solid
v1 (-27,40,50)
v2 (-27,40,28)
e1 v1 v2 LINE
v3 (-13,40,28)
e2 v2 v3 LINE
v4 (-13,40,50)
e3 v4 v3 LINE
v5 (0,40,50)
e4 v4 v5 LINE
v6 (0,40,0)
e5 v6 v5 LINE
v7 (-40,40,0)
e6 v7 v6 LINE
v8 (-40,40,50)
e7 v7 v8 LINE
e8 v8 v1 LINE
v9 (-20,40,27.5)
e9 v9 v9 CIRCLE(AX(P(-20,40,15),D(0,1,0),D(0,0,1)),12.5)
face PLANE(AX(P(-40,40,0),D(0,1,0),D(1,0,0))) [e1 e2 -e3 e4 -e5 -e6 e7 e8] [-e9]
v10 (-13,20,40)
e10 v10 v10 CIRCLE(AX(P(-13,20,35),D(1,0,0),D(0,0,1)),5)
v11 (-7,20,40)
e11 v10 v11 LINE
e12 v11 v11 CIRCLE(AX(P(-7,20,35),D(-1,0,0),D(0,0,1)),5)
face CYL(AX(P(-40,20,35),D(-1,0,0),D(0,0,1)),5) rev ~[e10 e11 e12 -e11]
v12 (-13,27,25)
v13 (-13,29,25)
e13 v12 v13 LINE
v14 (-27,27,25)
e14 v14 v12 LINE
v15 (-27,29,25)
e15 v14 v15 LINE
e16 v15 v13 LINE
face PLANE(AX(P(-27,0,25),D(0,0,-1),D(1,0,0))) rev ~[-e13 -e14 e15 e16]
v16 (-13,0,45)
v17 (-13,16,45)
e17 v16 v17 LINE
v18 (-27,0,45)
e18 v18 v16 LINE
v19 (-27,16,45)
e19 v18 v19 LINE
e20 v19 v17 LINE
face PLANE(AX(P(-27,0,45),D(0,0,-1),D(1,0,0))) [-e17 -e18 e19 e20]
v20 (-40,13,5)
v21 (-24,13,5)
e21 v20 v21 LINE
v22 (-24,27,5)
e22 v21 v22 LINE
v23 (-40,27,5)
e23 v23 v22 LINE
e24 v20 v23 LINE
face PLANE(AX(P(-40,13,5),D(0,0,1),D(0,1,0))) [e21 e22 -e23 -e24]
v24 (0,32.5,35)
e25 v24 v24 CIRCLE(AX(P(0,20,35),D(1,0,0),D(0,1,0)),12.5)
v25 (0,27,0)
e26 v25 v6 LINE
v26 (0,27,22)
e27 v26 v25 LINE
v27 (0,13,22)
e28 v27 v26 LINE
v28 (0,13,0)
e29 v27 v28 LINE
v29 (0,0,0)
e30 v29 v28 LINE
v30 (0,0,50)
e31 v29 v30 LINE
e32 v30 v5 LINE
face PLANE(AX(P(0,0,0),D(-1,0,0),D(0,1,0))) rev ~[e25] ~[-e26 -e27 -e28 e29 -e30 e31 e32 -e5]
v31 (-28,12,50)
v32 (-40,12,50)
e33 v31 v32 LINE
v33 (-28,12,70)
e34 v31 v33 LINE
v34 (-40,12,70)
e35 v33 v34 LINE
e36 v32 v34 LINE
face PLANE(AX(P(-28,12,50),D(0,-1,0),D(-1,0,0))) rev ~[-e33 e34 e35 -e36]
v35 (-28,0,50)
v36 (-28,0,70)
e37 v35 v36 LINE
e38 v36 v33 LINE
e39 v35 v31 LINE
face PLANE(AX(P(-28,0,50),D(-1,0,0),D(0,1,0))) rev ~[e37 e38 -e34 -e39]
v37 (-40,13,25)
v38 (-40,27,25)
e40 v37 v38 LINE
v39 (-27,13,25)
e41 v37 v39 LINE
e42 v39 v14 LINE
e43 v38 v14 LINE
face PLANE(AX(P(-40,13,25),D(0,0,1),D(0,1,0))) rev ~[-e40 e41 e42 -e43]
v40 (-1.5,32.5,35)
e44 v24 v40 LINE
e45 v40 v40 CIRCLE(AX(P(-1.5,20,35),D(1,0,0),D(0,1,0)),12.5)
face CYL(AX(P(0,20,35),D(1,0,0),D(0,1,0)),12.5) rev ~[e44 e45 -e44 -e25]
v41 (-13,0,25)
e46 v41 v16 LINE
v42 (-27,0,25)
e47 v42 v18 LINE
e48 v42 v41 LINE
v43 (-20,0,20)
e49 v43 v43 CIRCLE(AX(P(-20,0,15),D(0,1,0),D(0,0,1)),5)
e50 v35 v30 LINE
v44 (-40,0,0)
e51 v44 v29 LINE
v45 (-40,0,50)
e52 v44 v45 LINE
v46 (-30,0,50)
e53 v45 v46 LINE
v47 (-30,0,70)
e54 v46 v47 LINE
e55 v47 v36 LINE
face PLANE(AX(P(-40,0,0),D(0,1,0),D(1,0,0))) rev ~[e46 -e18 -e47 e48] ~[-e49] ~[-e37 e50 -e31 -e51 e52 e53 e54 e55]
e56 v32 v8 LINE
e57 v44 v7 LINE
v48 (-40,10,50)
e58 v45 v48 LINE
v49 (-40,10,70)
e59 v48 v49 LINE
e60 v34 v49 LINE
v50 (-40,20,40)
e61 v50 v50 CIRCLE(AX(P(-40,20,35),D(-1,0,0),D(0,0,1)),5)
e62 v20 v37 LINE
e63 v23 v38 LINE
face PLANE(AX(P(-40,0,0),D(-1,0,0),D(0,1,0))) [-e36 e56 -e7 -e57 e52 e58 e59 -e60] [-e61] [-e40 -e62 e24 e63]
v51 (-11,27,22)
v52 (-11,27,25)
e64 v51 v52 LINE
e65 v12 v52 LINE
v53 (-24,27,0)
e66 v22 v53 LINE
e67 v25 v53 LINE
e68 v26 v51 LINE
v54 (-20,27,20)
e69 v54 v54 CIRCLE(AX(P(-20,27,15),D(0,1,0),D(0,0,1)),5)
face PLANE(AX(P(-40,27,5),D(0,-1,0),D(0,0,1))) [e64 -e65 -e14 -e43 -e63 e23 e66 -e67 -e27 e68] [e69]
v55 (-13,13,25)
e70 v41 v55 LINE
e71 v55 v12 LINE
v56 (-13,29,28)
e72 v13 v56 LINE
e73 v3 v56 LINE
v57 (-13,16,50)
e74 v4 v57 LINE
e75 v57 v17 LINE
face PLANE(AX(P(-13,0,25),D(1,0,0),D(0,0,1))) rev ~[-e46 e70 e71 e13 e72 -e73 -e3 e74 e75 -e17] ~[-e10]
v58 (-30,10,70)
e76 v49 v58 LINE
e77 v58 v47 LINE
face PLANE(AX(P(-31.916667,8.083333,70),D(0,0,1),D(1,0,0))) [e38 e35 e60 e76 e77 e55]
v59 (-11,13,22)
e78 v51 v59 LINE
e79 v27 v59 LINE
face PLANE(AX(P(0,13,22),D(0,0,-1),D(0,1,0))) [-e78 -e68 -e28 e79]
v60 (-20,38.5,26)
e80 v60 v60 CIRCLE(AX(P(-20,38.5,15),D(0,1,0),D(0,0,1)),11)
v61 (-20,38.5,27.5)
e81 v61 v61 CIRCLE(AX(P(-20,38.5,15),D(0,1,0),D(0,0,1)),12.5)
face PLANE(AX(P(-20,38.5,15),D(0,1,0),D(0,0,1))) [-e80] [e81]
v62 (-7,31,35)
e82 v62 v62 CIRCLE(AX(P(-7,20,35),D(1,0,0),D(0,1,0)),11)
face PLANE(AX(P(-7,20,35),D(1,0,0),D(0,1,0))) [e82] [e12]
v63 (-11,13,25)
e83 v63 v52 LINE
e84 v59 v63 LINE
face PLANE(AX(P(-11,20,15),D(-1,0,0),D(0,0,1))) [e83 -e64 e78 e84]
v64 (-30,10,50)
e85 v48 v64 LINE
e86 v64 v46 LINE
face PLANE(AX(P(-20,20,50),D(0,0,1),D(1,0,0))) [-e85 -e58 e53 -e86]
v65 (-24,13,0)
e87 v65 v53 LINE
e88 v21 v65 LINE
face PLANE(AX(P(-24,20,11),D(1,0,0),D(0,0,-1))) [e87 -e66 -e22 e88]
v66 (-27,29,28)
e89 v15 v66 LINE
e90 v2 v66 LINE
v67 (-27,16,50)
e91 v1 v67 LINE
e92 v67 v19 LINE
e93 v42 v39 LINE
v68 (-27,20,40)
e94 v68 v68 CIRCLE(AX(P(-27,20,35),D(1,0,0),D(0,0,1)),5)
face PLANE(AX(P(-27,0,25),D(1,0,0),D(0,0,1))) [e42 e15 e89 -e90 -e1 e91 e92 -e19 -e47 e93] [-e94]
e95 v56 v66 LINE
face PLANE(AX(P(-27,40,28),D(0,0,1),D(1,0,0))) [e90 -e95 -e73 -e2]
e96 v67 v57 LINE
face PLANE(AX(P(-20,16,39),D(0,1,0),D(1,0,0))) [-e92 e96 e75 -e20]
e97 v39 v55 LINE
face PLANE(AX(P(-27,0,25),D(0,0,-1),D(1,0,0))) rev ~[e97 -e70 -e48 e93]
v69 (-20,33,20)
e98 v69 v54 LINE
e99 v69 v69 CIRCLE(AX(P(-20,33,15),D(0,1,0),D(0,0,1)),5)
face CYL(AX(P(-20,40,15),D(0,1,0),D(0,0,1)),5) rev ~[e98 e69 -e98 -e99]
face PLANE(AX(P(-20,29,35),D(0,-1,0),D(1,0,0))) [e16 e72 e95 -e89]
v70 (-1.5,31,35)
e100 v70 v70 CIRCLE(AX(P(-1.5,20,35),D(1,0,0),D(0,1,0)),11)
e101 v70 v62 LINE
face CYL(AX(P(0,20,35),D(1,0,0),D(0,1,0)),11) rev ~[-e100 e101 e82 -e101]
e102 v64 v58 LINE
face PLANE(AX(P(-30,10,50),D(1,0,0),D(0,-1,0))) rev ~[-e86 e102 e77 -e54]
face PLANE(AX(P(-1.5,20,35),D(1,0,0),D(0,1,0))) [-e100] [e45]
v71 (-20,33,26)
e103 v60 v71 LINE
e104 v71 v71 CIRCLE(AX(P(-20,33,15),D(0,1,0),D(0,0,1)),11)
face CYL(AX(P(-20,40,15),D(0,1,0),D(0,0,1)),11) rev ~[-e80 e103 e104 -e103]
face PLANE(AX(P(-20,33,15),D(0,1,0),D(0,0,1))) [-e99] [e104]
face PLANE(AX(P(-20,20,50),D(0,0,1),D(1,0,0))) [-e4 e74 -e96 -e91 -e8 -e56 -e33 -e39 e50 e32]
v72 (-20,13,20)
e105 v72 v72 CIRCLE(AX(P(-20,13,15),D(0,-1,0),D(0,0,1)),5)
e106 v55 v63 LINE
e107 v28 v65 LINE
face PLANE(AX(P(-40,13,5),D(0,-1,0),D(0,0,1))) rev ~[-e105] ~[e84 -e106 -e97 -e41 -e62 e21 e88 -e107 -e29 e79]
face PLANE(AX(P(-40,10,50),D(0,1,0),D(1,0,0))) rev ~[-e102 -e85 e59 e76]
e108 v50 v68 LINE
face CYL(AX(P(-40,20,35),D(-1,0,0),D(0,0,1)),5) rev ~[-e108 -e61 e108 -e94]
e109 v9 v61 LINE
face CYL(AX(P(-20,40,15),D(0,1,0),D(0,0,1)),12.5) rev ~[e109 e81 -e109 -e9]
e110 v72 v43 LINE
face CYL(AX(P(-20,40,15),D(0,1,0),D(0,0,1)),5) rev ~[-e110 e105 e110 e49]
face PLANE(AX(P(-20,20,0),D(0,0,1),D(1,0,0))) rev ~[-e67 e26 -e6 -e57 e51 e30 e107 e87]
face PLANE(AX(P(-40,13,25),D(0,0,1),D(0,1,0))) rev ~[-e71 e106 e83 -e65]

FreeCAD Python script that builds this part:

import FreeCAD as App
import Part
import Sketcher

V = App.Vector
Q = App.Units.Quantity


def add_polygon(sketch, points):
    """Adds a closed chain of lines whose ends are joined by coincident constraints."""
    first, n = sketch.GeometryCount, len(points)
    for a, b in zip(points, points[1:] + points[:1]):
        sketch.addGeometry(Part.LineSegment(App.Vector(*a, 0), App.Vector(*b, 0)), False)
    for i in range(n):
        sketch.addConstraint(Sketcher.Constraint("Coincident", first + i, 2, first + (i + 1) % n, 1))

doc = App.newDocument("Part")
body = doc.addObject("PartDesign::Body", "Body")

# Sketch on XY plane
sketch1 = body.newObject("Sketcher::SketchObject", "Sketch")
sketch1.AttachmentSupport = (doc.getObject("XY_Plane"), [""])
sketch1.MapMode = "FlatFace"
add_polygon(sketch1, [(-40, 40), (-40, 0), (0, 0), (0, 40)])  # lines 0-3
sketch1.addConstraint([
    Sketcher.Constraint("Vertical", 0),
    Sketcher.Constraint("Horizontal", 1),
    Sketcher.Constraint("Vertical", 2),
    Sketcher.Constraint("Horizontal", 3),
    Sketcher.Constraint("Coincident", 1, 2, -1, 1),
    Sketcher.Constraint("Equal", 3, 0),
    Sketcher.Constraint("DistanceX", 1, 1, 1, 2, Q("40 mm")),
])
pad1 = body.newObject("PartDesign::Pad", "Pad")
pad1.Profile = sketch1
pad1.Length = 50

# Sketch on XZ plane
sketch2 = body.newObject("Sketcher::SketchObject", "Sketch001")
sketch2.AttachmentSupport = (doc.getObject("XZ_Plane"), [""])
sketch2.MapMode = "FlatFace"
sketch2.AttachmentOffset = App.Placement(V(0, 0, -40), App.Rotation())
sketch2.addGeometry(Part.Circle(V(-20, 15, 0), V(0, 0, 1), 5), False)
sketch2.addConstraint([
    Sketcher.Constraint("Diameter", 0, Q("10 mm")),
    Sketcher.Constraint("DistanceX", 0, 3, -1, 1, Q("20 mm")),
    Sketcher.Constraint("DistanceY", -1, 1, 0, 3, Q("15 mm")),
])
pocket1 = body.newObject("PartDesign::Pocket", "Pocket")
pocket1.Profile = sketch2
pocket1.Type = "ThroughAll"
pocket1.Reversed = True

# Sketch on YZ plane
sketch3 = body.newObject("Sketcher::SketchObject", "Sketch002")
sketch3.AttachmentSupport = (doc.getObject("YZ_Plane"), [""])
sketch3.MapMode = "FlatFace"
sketch3.AttachmentOffset = App.Placement(V(0, 0, -40), App.Rotation())
sketch3.addGeometry(Part.Circle(V(20, 35, 0), V(0, 0, 1), 5), False)
sketch3.addConstraint([
    Sketcher.Constraint("Diameter", 0, Q("10 mm")),
    Sketcher.Constraint("DistanceX", -1, 1, 0, 3, Q("20 mm")),
    Sketcher.Constraint("DistanceY", -1, 1, 0, 3, Q("35 mm")),
])
pocket2 = body.newObject("PartDesign::Pocket", "Pocket001")
pocket2.Profile = sketch3
pocket2.Type = "ThroughAll"
pocket2.Reversed = True

# Sketch on YZ plane
sketch4 = body.newObject("Sketcher::SketchObject", "Sketch003")
sketch4.AttachmentSupport = (doc.getObject("YZ_Plane"), [""])
sketch4.MapMode = "FlatFace"
sketch4.AttachmentOffset = App.Placement(V(0, 0, -40), App.Rotation())
add_polygon(sketch4, [(27, 5), (13, 5), (13, 25), (27, 25)])  # lines 0-3
sketch4.addConstraint([
    Sketcher.Constraint("Horizontal", 0),
    Sketcher.Constraint("Vertical", 1),
    Sketcher.Constraint("Horizontal", 2),
    Sketcher.Constraint("Vertical", 3),
    Sketcher.Constraint("DistanceX", 0, 2, 0, 1, Q("14 mm")),
    Sketcher.Constraint("DistanceY", 1, 1, 1, 2, Q("20 mm")),
    Sketcher.Constraint("DistanceX", -1, 1, 0, 2, Q("13 mm")),
    Sketcher.Constraint("DistanceY", -1, 1, 0, 2, Q("5 mm")),
])
pocket3 = body.newObject("PartDesign::Pocket", "Pocket002")
pocket3.Profile = sketch4
pocket3.Length = 29
pocket3.Reversed = True

# Sketch on XZ plane
sketch5 = body.newObject("Sketcher::SketchObject", "Sketch004")
sketch5.AttachmentSupport = (doc.getObject("XZ_Plane"), [""])
sketch5.MapMode = "FlatFace"
add_polygon(sketch5, [(-27, 45), (-27, 25), (-13, 25), (-13, 45)])  # lines 0-3
sketch5.addConstraint([
    Sketcher.Constraint("Vertical", 0),
    Sketcher.Constraint("Horizontal", 1),
    Sketcher.Constraint("Vertical", 2),
    Sketcher.Constraint("Horizontal", 3),
    Sketcher.Constraint("DistanceX", 1, 1, 1, 2, Q("14 mm")),
    Sketcher.Constraint("DistanceY", 0, 2, 0, 1, Q("20 mm")),
    Sketcher.Constraint("DistanceX", 0, 2, -1, 1, Q("27 mm")),
    Sketcher.Constraint("DistanceY", -1, 1, 0, 2, Q("25 mm")),
])
pocket4 = body.newObject("PartDesign::Pocket", "Pocket003")
pocket4.Profile = sketch5
pocket4.Length = 29

# Sketch on YZ plane
sketch6 = body.newObject("Sketcher::SketchObject", "Sketch005")
sketch6.AttachmentSupport = (doc.getObject("YZ_Plane"), [""])
sketch6.MapMode = "FlatFace"
add_polygon(sketch6, [(27, 22), (13, 22), (13, 0), (27, 0)])  # lines 0-3
sketch6.addConstraint([
    Sketcher.Constraint("Horizontal", 0),
    Sketcher.Constraint("Vertical", 1),
    Sketcher.Constraint("Horizontal", 2),
    Sketcher.Constraint("Vertical", 3),
    Sketcher.Constraint("PointOnObject", 1, 2, -1),
    Sketcher.Constraint("DistanceX", 0, 2, 0, 1, Q("14 mm")),
    Sketcher.Constraint("DistanceY", 1, 2, 1, 1, Q("22 mm")),
    Sketcher.Constraint("DistanceX", -1, 1, 0, 2, Q("13 mm")),
])
pocket5 = body.newObject("PartDesign::Pocket", "Pocket004")
pocket5.Profile = sketch6
pocket5.Length = 24

# Sketch on XZ plane
sketch7 = body.newObject("Sketcher::SketchObject", "Sketch006")
sketch7.AttachmentSupport = (doc.getObject("XZ_Plane"), [""])
sketch7.MapMode = "FlatFace"
sketch7.AttachmentOffset = App.Placement(V(0, 0, -40), App.Rotation())
add_polygon(sketch7, [(-27, 28), (-27, 50), (-13, 50), (-13, 28)])  # lines 0-3
sketch7.addConstraint([
    Sketcher.Constraint("Vertical", 0),
    Sketcher.Constraint("Horizontal", 1),
    Sketcher.Constraint("Vertical", 2),
    Sketcher.Constraint("Horizontal", 3),
    Sketcher.Constraint("DistanceX", 1, 1, 1, 2, Q("14 mm")),
    Sketcher.Constraint("DistanceY", 0, 1, 0, 2, Q("22 mm")),
    Sketcher.Constraint("DistanceX", 0, 2, -1, 1, Q("27 mm")),
    Sketcher.Constraint("DistanceY", -1, 1, 0, 2, Q("50 mm")),
])
pocket6 = body.newObject("PartDesign::Pocket", "Pocket005")
pocket6.Profile = sketch7
pocket6.Length = 24
pocket6.Reversed = True

# Sketch on YZ plane
sketch8 = body.newObject("Sketcher::SketchObject", "Sketch007")
sketch8.AttachmentSupport = (doc.getObject("YZ_Plane"), [""])
sketch8.MapMode = "FlatFace"
sketch8.addGeometry(Part.Circle(V(20, 35, 0), V(0, 0, 1), 11), False)
sketch8.addConstraint([
    Sketcher.Constraint("Diameter", 0, Q("22 mm")),
    Sketcher.Constraint("DistanceX", -1, 1, 0, 3, Q("20 mm")),
    Sketcher.Constraint("DistanceY", -1, 1, 0, 3, Q("35 mm")),
])
pocket7 = body.newObject("PartDesign::Pocket", "Pocket006")
pocket7.Profile = sketch8
pocket7.Length = 7

# Sketch on YZ plane
sketch9 = body.newObject("Sketcher::SketchObject", "Sketch008")
sketch9.AttachmentSupport = (doc.getObject("YZ_Plane"), [""])
sketch9.MapMode = "FlatFace"
sketch9.addGeometry(Part.Circle(V(20, 35, 0), V(0, 0, 1), 12.5), False)
sketch9.addConstraint([
    Sketcher.Constraint("Diameter", 0, Q("25 mm")),
    Sketcher.Constraint("DistanceX", -1, 1, 0, 3, Q("20 mm")),
    Sketcher.Constraint("DistanceY", -1, 1, 0, 3, Q("35 mm")),
])
pocket8 = body.newObject("PartDesign::Pocket", "Pocket007")
pocket8.Profile = sketch9
pocket8.Length = 1.5

# Sketch on XZ plane
sketch10 = body.newObject("Sketcher::SketchObject", "Sketch009")
sketch10.AttachmentSupport = (doc.getObject("XZ_Plane"), [""])
sketch10.MapMode = "FlatFace"
sketch10.AttachmentOffset = App.Placement(V(0, 0, -40), App.Rotation())
sketch10.addGeometry(Part.Circle(V(-20, 15, 0), V(0, 0, 1), 11), False)
sketch10.addConstraint([
    Sketcher.Constraint("Diameter", 0, Q("22 mm")),
    Sketcher.Constraint("DistanceX", 0, 3, -1, 1, Q("20 mm")),
    Sketcher.Constraint("DistanceY", -1, 1, 0, 3, Q("15 mm")),
])
pocket9 = body.newObject("PartDesign::Pocket", "Pocket008")
pocket9.Profile = sketch10
pocket9.Length = 7
pocket9.Reversed = True

# Sketch on XZ plane
sketch11 = body.newObject("Sketcher::SketchObject", "Sketch010")
sketch11.AttachmentSupport = (doc.getObject("XZ_Plane"), [""])
sketch11.MapMode = "FlatFace"
sketch11.AttachmentOffset = App.Placement(V(0, 0, -40), App.Rotation())
sketch11.addGeometry(Part.Circle(V(-20, 15, 0), V(0, 0, 1), 12.5), False)
sketch11.addConstraint([
    Sketcher.Constraint("Diameter", 0, Q("25 mm")),
    Sketcher.Constraint("DistanceX", 0, 3, -1, 1, Q("20 mm")),
    Sketcher.Constraint("DistanceY", -1, 1, 0, 3, Q("15 mm")),
])
pocket10 = body.newObject("PartDesign::Pocket", "Pocket009")
pocket10.Profile = sketch11
pocket10.Length = 1.5
pocket10.Reversed = True

# Sketch on XY plane
sketch12 = body.newObject("Sketcher::SketchObject", "Sketch011")
sketch12.AttachmentSupport = (doc.getObject("XY_Plane"), [""])
sketch12.MapMode = "FlatFace"
sketch12.AttachmentOffset = App.Placement(V(0, 0, 50), App.Rotation())
add_polygon(sketch12, [(-40, 10), (-30, 10), (-30, 0), (-28, 0), (-28, 12), (-40, 12)])  # lines 0-5
sketch12.addConstraint([
    Sketcher.Constraint("Horizontal", 0),
    Sketcher.Constraint("Vertical", 1),
    Sketcher.Constraint("Horizontal", 2),
    Sketcher.Constraint("Vertical", 3),
    Sketcher.Constraint("Horizontal", 4),
    Sketcher.Constraint("Vertical", 5),
    Sketcher.Constraint("PointOnObject", 1, 2, -1),
    Sketcher.Constraint("Equal", 0, 1),
    Sketcher.Constraint("Equal", 4, 3),
    Sketcher.Constraint("DistanceX", 0, 1, 0, 2, Q("10 mm")),
    Sketcher.Constraint("DistanceX", 2, 1, 2, 2, Q("2 mm")),
    Sketcher.Constraint("DistanceX", 0, 2, -1, 1, Q("30 mm")),
])
pad2 = body.newObject("PartDesign::Pad", "Pad001")
pad2.Profile = sketch12
pad2.Length = 20

doc.recompute()
